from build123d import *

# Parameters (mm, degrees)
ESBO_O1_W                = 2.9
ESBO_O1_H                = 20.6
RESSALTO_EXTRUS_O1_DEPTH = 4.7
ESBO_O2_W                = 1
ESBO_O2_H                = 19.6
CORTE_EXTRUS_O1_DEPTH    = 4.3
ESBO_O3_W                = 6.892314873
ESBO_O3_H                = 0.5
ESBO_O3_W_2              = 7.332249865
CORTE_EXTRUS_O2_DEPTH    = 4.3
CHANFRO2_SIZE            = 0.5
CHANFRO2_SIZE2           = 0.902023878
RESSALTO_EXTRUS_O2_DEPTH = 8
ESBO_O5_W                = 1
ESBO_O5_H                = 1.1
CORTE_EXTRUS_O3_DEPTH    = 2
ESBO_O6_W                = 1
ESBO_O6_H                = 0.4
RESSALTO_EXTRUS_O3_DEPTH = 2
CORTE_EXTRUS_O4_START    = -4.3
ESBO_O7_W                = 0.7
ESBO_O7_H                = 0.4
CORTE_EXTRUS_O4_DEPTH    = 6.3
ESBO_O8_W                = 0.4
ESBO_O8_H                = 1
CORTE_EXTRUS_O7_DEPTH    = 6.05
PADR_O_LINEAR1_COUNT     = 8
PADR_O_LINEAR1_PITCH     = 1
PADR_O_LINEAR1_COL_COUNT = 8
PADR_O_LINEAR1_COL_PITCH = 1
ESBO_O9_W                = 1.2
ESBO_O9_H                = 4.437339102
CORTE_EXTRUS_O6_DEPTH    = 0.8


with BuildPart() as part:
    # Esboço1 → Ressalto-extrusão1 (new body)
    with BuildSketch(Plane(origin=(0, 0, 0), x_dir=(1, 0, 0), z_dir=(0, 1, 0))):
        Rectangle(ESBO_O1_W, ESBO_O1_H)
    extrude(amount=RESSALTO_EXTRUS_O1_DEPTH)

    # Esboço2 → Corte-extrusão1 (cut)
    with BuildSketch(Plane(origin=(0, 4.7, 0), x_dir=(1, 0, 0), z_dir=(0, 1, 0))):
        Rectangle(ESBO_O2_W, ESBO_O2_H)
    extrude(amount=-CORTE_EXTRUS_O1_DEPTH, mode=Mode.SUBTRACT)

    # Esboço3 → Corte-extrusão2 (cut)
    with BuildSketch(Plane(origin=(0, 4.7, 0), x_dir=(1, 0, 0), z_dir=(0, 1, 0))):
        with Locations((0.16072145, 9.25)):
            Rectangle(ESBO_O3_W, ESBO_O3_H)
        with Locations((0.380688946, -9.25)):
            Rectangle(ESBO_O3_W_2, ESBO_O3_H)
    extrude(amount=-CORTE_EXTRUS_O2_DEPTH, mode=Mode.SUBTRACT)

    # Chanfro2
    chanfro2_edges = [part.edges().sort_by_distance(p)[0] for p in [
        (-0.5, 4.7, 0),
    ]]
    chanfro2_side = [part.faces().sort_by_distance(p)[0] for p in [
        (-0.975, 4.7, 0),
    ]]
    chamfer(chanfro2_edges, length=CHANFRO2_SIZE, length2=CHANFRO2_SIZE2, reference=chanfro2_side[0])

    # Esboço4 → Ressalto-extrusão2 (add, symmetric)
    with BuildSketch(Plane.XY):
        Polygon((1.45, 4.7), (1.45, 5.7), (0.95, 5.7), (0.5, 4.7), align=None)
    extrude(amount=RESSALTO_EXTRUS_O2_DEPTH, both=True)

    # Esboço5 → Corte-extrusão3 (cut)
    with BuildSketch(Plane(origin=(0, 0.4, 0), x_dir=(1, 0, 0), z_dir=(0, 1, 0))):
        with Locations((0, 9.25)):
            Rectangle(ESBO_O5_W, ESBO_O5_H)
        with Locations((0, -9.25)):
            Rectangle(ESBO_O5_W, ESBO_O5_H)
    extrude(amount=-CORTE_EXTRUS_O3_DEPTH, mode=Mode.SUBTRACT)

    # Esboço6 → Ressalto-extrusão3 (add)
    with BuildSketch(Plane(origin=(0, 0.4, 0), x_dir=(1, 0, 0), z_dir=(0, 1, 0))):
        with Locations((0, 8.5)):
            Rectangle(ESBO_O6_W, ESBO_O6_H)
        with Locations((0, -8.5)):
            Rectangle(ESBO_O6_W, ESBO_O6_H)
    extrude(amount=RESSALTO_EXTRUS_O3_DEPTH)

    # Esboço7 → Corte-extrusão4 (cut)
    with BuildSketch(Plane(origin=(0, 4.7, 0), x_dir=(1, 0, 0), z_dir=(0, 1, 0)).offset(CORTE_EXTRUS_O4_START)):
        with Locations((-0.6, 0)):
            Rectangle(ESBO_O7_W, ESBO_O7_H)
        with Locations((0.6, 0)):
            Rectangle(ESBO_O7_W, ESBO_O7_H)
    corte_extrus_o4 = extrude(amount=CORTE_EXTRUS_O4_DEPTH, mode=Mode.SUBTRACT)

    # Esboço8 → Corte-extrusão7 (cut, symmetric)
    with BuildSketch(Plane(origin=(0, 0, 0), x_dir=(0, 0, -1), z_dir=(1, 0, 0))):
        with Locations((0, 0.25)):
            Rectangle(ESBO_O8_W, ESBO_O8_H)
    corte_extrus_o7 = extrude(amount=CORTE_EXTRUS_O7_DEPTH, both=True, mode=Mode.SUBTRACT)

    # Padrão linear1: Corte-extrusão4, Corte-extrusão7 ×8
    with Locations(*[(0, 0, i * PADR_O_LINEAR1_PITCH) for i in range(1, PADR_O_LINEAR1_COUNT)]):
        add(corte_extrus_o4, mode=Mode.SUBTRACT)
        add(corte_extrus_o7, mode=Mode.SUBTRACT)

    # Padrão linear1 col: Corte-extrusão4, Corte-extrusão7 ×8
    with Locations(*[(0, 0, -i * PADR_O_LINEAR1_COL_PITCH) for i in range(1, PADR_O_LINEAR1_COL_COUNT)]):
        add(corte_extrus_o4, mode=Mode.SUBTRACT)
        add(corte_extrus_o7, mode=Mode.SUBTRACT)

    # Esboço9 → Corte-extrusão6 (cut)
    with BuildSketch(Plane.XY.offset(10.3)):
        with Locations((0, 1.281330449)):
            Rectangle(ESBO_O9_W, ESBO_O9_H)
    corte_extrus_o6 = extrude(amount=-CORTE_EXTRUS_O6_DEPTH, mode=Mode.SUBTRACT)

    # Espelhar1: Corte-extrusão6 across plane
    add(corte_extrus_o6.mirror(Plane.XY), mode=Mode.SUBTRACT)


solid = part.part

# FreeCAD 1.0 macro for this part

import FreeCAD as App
import Part
import Sketcher
Q = App.Units.Quantity


def edges_at(feature, points):
    """Names of the edges that pass closest to the given points."""
    edges = feature.Shape.Edges
    near = lambda p: min(range(len(edges)), key=lambda i: edges[i].distToShape(Part.Vertex(*p))[0])
    return sorted({f"Edge{near(p) + 1}" for p in points})

doc = App.newDocument("Part")
body = doc.addObject("PartDesign::Body", "Body")

# Sketch on XZ plane
sketch1 = body.newObject("Sketcher::SketchObject", "Sketch")
sketch1.AttachmentSupport = (doc.getObject("XZ_Plane"), [""])
sketch1.MapMode = "FlatFace"
sketch1.addGeometry(Part.LineSegment(App.Vector(-1.45, -10.3, 0), App.Vector(-1.45, 10.3, 0)), False)
sketch1.addGeometry(Part.LineSegment(App.Vector(-1.45, 10.3, 0), App.Vector(1.45, 10.3, 0)), False)
sketch1.addGeometry(Part.LineSegment(App.Vector(1.45, 10.3, 0), App.Vector(1.45, -10.3, 0)), False)
sketch1.addGeometry(Part.LineSegment(App.Vector(1.45, -10.3, 0), App.Vector(-1.45, -10.3, 0)), False)
sketch1.addConstraint(Sketcher.Constraint("Coincident", 0, 2, 1, 1))
sketch1.addConstraint(Sketcher.Constraint("Coincident", 1, 2, 2, 1))
sketch1.addConstraint(Sketcher.Constraint("Coincident", 2, 2, 3, 1))
sketch1.addConstraint(Sketcher.Constraint("Coincident", 3, 2, 0, 1))
sketch1.addConstraint(Sketcher.Constraint("Vertical", 0))
sketch1.addConstraint(Sketcher.Constraint("Horizontal", 1))
sketch1.addConstraint(Sketcher.Constraint("Vertical", 2))
sketch1.addConstraint(Sketcher.Constraint("Horizontal", 3))
sketch1.addConstraint(Sketcher.Constraint("Symmetric", 0, 2, 2, 2, -1, 1))
sketch1.addConstraint(Sketcher.Constraint("DistanceX", 1, 1, 1, 2, Q("2.9 mm")))
sketch1.addConstraint(Sketcher.Constraint("DistanceY", 0, 1, 0, 2, Q("20.6 mm")))
pad1 = body.newObject("PartDesign::Pad", "Pad")
pad1.Profile = sketch1
pad1.Length = 4.7
pad1.Reversed = True

# Sketch on XZ plane
sketch2 = body.newObject("Sketcher::SketchObject", "Sketch001")
sketch2.AttachmentSupport = (doc.getObject("XZ_Plane"), [""])
sketch2.MapMode = "FlatFace"
sketch2.AttachmentOffset = App.Placement(App.Vector(0, 0, -4.7), App.Rotation())
sketch2.addGeometry(Part.LineSegment(App.Vector(-0.5, -9.8, 0), App.Vector(-0.5, 9.8, 0)), False)
sketch2.addGeometry(Part.LineSegment(App.Vector(-0.5, 9.8, 0), App.Vector(0.5, 9.8, 0)), False)
sketch2.addGeometry(Part.LineSegment(App.Vector(0.5, 9.8, 0), App.Vector(0.5, -9.8, 0)), False)
sketch2.addGeometry(Part.LineSegment(App.Vector(0.5, -9.8, 0), App.Vector(-0.5, -9.8, 0)), False)
sketch2.addConstraint(Sketcher.Constraint("Coincident", 0, 2, 1, 1))
sketch2.addConstraint(Sketcher.Constraint("Coincident", 1, 2, 2, 1))
sketch2.addConstraint(Sketcher.Constraint("Coincident", 2, 2, 3, 1))
sketch2.addConstraint(Sketcher.Constraint("Coincident", 3, 2, 0, 1))
sketch2.addConstraint(Sketcher.Constraint("Vertical", 0))
sketch2.addConstraint(Sketcher.Constraint("Horizontal", 1))
sketch2.addConstraint(Sketcher.Constraint("Vertical", 2))
sketch2.addConstraint(Sketcher.Constraint("Horizontal", 3))
sketch2.addConstraint(Sketcher.Constraint("Symmetric", 0, 2, 2, 2, -1, 1))
sketch2.addConstraint(Sketcher.Constraint("DistanceX", 1, 1, 1, 2, Q("1 mm")))
sketch2.addConstraint(Sketcher.Constraint("DistanceY", 0, 1, 0, 2, Q("19.6 mm")))
pocket1 = body.newObject("PartDesign::Pocket", "Pocket")
pocket1.Profile = sketch2
pocket1.Length = 4.3
pocket1.Reversed = True

# Sketch on XZ plane
sketch3 = body.newObject("Sketcher::SketchObject", "Sketch002")
sketch3.AttachmentSupport = (doc.getObject("XZ_Plane"), [""])
sketch3.MapMode = "FlatFace"
sketch3.AttachmentOffset = App.Placement(App.Vector(0, 0, -4.7), App.Rotation())
sketch3.addGeometry(Part.LineSegment(App.Vector(-3.285436, -9.5, 0), App.Vector(-3.285436, -9, 0)), False)
sketch3.addGeometry(Part.LineSegment(App.Vector(-3.285436, -9, 0), App.Vector(3.606879, -9, 0)), False)
sketch3.addGeometry(Part.LineSegment(App.Vector(3.606879, -9, 0), App.Vector(3.606879, -9.5, 0)), False)
sketch3.addGeometry(Part.LineSegment(App.Vector(3.606879, -9.5, 0), App.Vector(-3.285436, -9.5, 0)), False)
sketch3.addGeometry(Part.LineSegment(App.Vector(-3.285436, 9, 0), App.Vector(-3.285436, 9.5, 0)), False)
sketch3.addGeometry(Part.LineSegment(App.Vector(-3.285436, 9.5, 0), App.Vector(4.046814, 9.5, 0)), False)
sketch3.addGeometry(Part.LineSegment(App.Vector(4.046814, 9.5, 0), App.Vector(4.046814, 9, 0)), False)
sketch3.addGeometry(Part.LineSegment(App.Vector(4.046814, 9, 0), App.Vector(-3.285436, 9, 0)), False)
sketch3.addConstraint(Sketcher.Constraint("Coincident", 0, 2, 1, 1))
sketch3.addConstraint(Sketcher.Constraint("Coincident", 1, 2, 2, 1))
sketch3.addConstraint(Sketcher.Constraint("Coincident", 2, 2, 3, 1))
sketch3.addConstraint(Sketcher.Constraint("Coincident", 3, 2, 0, 1))
sketch3.addConstraint(Sketcher.Constraint("Coincident", 4, 2, 5, 1))
sketch3.addConstraint(Sketcher.Constraint("Coincident", 5, 2, 6, 1))
sketch3.addConstraint(Sketcher.Constraint("Coincident", 6, 2, 7, 1))
sketch3.addConstraint(Sketcher.Constraint("Coincident", 7, 2, 4, 1))
sketch3.addConstraint(Sketcher.Constraint("Vertical", 0))
sketch3.addConstraint(Sketcher.Constraint("Horizontal", 1))
sketch3.addConstraint(Sketcher.Constraint("Vertical", 2))
sketch3.addConstraint(Sketcher.Constraint("Horizontal", 3))
sketch3.addConstraint(Sketcher.Constraint("Vertical", 4))
sketch3.addConstraint(Sketcher.Constraint("Horizontal", 5))
sketch3.addConstraint(Sketcher.Constraint("Vertical", 6))
sketch3.addConstraint(Sketcher.Constraint("Horizontal", 7))
sketch3.addConstraint(Sketcher.Constraint("Symmetric", 3, 2, 4, 2, -1))
sketch3.addConstraint(Sketcher.Constraint("Equal", 2, 4))
sketch3.addConstraint(Sketcher.Constraint("DistanceY", 0, 1, 0, 2, Q("0.5 mm")))
sketch3.addConstraint(Sketcher.Constraint("DistanceY", 0, 2, -1, 1, Q("9 mm")))
sketch3.addConstraint(Sketcher.Constraint("DistanceX", 5, 1, 5, 2, Q("7.33225 mm")))
sketch3.addConstraint(Sketcher.Constraint("DistanceX", 1, 1, 1, 2, Q("6.892315 mm")))
sketch3.addConstraint(Sketcher.Constraint("DistanceX", -1, 1, 1, 2, Q("3.606879 mm")))
pocket2 = body.newObject("PartDesign::Pocket", "Pocket001")
pocket2.Profile = sketch3
pocket2.Length = 4.3
pocket2.Reversed = True
doc.recompute()

chamfer = body.newObject("PartDesign::Chamfer", "Chamfer")
chamfer.Base = (pocket2, edges_at(pocket2, [(-0.5, 4.7, 0)]))
chamfer.ChamferType = "Two distances"
chamfer.Size = 0.5
chamfer.Size2 = 0.902024

# Sketch on XY plane
sketch4 = body.newObject("Sketcher::SketchObject", "Sketch003")
sketch4.AttachmentSupport = (doc.getObject("XY_Plane"), [""])
sketch4.MapMode = "FlatFace"
sketch4.addGeometry(Part.LineSegment(App.Vector(1.45, 4.7, 0), App.Vector(1.45, 5.7, 0)), False)
sketch4.addGeometry(Part.LineSegment(App.Vector(1.45, 5.7, 0), App.Vector(0.95, 5.7, 0)), False)
sketch4.addGeometry(Part.LineSegment(App.Vector(0.95, 5.7, 0), App.Vector(0.5, 4.7, 0)), False)
sketch4.addGeometry(Part.LineSegment(App.Vector(0.5, 4.7, 0), App.Vector(1.45, 4.7, 0)), False)
sketch4.addConstraint(Sketcher.Constraint("Coincident", 0, 2, 1, 1))
sketch4.addConstraint(Sketcher.Constraint("Coincident", 1, 2, 2, 1))
sketch4.addConstraint(Sketcher.Constraint("Coincident", 2, 2, 3, 1))
sketch4.addConstraint(Sketcher.Constraint("Coincident", 3, 2, 0, 1))
sketch4.addConstraint(Sketcher.Constraint("Vertical", 0))
sketch4.addConstraint(Sketcher.Constraint("Horizontal", 1))
sketch4.addConstraint(Sketcher.Constraint("Horizontal", 3))
sketch4.addConstraint(Sketcher.Constraint("DistanceY", 0, 1, 0, 2, Q("1 mm")))
sketch4.addConstraint(Sketcher.Constraint("DistanceX", 1, 2, 1, 1, Q("0.5 mm")))
sketch4.addConstraint(Sketcher.Constraint("DistanceX", 3, 1, 3, 2, Q("0.95 mm")))
sketch4.addConstraint(Sketcher.Constraint("DistanceY", -1, 1, 0, 2, Q("5.7 mm")))
sketch4.addConstraint(Sketcher.Constraint("DistanceX", -1, 1, 2, 2, Q("0.5 mm")))
pad2 = body.newObject("PartDesign::Pad", "Pad001")
pad2.Profile = sketch4
pad2.Length = 16
pad2.Midplane = True

# Sketch on XZ plane
sketch5 = body.newObject("Sketcher::SketchObject", "Sketch004")
sketch5.AttachmentSupport = (doc.getObject("XZ_Plane"), [""])
sketch5.MapMode = "FlatFace"
sketch5.AttachmentOffset = App.Placement(App.Vector(0, 0, -0.4), App.Rotation())
sketch5.addGeometry(Part.LineSegment(App.Vector(-0.5, -9.8, 0), App.Vector(-0.5, -8.7, 0)), False)
sketch5.addGeometry(Part.LineSegment(App.Vector(-0.5, -8.7, 0), App.Vector(0.5, -8.7, 0)), False)
sketch5.addGeometry(Part.LineSegment(App.Vector(0.5, -8.7, 0), App.Vector(0.5, -9.8, 0)), False)
sketch5.addGeometry(Part.LineSegment(App.Vector(0.5, -9.8, 0), App.Vector(-0.5, -9.8, 0)), False)
sketch5.addGeometry(Part.LineSegment(App.Vector(-0.5, 8.7, 0), App.Vector(-0.5, 9.8, 0)), False)
sketch5.addGeometry(Part.LineSegment(App.Vector(-0.5, 9.8, 0), App.Vector(0.5, 9.8, 0)), False)
sketch5.addGeometry(Part.LineSegment(App.Vector(0.5, 9.8, 0), App.Vector(0.5, 8.7, 0)), False)
sketch5.addGeometry(Part.LineSegment(App.Vector(0.5, 8.7, 0), App.Vector(-0.5, 8.7, 0)), False)
sketch5.addConstraint(Sketcher.Constraint("Coincident", 0, 2, 1, 1))
sketch5.addConstraint(Sketcher.Constraint("Coincident", 1, 2, 2, 1))
sketch5.addConstraint(Sketcher.Constraint("Coincident", 2, 2, 3, 1))
sketch5.addConstraint(Sketcher.Constraint("Coincident", 3, 2, 0, 1))
sketch5.addConstraint(Sketcher.Constraint("Coincident", 4, 2, 5, 1))
sketch5.addConstraint(Sketcher.Constraint("Coincident", 5, 2, 6, 1))
sketch5.addConstraint(Sketcher.Constraint("Coincident", 6, 2, 7, 1))
sketch5.addConstraint(Sketcher.Constraint("Coincident", 7, 2, 4, 1))
sketch5.addConstraint(Sketcher.Constraint("Vertical", 0))
sketch5.addConstraint(Sketcher.Constraint("Horizontal", 1))
sketch5.addConstraint(Sketcher.Constraint("Vertical", 2))
sketch5.addConstraint(Sketcher.Constraint("Horizontal", 3))
sketch5.addConstraint(Sketcher.Constraint("Vertical", 4))
sketch5.addConstraint(Sketcher.Constraint("Horizontal", 5))
sketch5.addConstraint(Sketcher.Constraint("Vertical", 6))
sketch5.addConstraint(Sketcher.Constraint("Horizontal", 7))
sketch5.addConstraint(Sketcher.Constraint("Symmetric", 2, 2, 4, 2, -1, 1))
sketch5.addConstraint(Sketcher.Constraint("Symmetric", 0, 2, 6, 2, -1, 1))
sketch5.addConstraint(Sketcher.Constraint("Vertical", 3, 2, 4, 2))
sketch5.addConstraint(Sketcher.Constraint("DistanceX", 1, 1, 1, 2, Q("1 mm")))
sketch5.addConstraint(Sketcher.Constraint("DistanceY", 0, 1, 0, 2, Q("1.1 mm")))
sketch5.addConstraint(Sketcher.Constraint("DistanceY", 0, 2, -1, 1, Q("8.7 mm")))
pocket3 = body.newObject("PartDesign::Pocket", "Pocket002")
pocket3.Profile = sketch5
pocket3.Length = 2
pocket3.Reversed = True

# Sketch on XZ plane
sketch6 = body.newObject("Sketcher::SketchObject", "Sketch005")
sketch6.AttachmentSupport = (doc.getObject("XZ_Plane"), [""])
sketch6.MapMode = "FlatFace"
sketch6.AttachmentOffset = App.Placement(App.Vector(0, 0, -0.4), App.Rotation())
sketch6.addGeometry(Part.LineSegment(App.Vector(-0.5, -8.7, 0), App.Vector(-0.5, -8.3, 0)), False)
sketch6.addGeometry(Part.LineSegment(App.Vector(-0.5, -8.3, 0), App.Vector(0.5, -8.3, 0)), False)
sketch6.addGeometry(Part.LineSegment(App.Vector(0.5, -8.3, 0), App.Vector(0.5, -8.7, 0)), False)
sketch6.addGeometry(Part.LineSegment(App.Vector(0.5, -8.7, 0), App.Vector(-0.5, -8.7, 0)), False)
sketch6.addGeometry(Part.LineSegment(App.Vector(-0.5, 8.3, 0), App.Vector(-0.5, 8.7, 0)), False)
sketch6.addGeometry(Part.LineSegment(App.Vector(-0.5, 8.7, 0), App.Vector(0.5, 8.7, 0)), False)
sketch6.addGeometry(Part.LineSegment(App.Vector(0.5, 8.7, 0), App.Vector(0.5, 8.3, 0)), False)
sketch6.addGeometry(Part.LineSegment(App.Vector(0.5, 8.3, 0), App.Vector(-0.5, 8.3, 0)), False)
sketch6.addConstraint(Sketcher.Constraint("Coincident", 0, 2, 1, 1))
sketch6.addConstraint(Sketcher.Constraint("Coincident", 1, 2, 2, 1))
sketch6.addConstraint(Sketcher.Constraint("Coincident", 2, 2, 3, 1))
sketch6.addConstraint(Sketcher.Constraint("Coincident", 3, 2, 0, 1))
sketch6.addConstraint(Sketcher.Constraint("Coincident", 4, 2, 5, 1))
sketch6.addConstraint(Sketcher.Constraint("Coincident", 5, 2, 6, 1))
sketch6.addConstraint(Sketcher.Constraint("Coincident", 6, 2, 7, 1))
sketch6.addConstraint(Sketcher.Constraint("Coincident", 7, 2, 4, 1))
sketch6.addConstraint(Sketcher.Constraint("Vertical", 0))
sketch6.addConstraint(Sketcher.Constraint("Horizontal", 1))
sketch6.addConstraint(Sketcher.Constraint("Vertical", 2))
sketch6.addConstraint(Sketcher.Constraint("Horizontal", 3))
sketch6.addConstraint(Sketcher.Constraint("Vertical", 4))
sketch6.addConstraint(Sketcher.Constraint("Horizontal", 5))
sketch6.addConstraint(Sketcher.Constraint("Vertical", 6))
sketch6.addConstraint(Sketcher.Constraint("Horizontal", 7))
sketch6.addConstraint(Sketcher.Constraint("Symmetric", 2, 2, 4, 2, -1, 1))
sketch6.addConstraint(Sketcher.Constraint("Symmetric", 0, 2, 6, 2, -1, 1))
sketch6.addConstraint(Sketcher.Constraint("Vertical", 3, 2, 4, 2))
sketch6.addConstraint(Sketcher.Constraint("DistanceX", 1, 1, 1, 2, Q("1 mm")))
sketch6.addConstraint(Sketcher.Constraint("DistanceY", 0, 1, 0, 2, Q("0.4 mm")))
sketch6.addConstraint(Sketcher.Constraint("DistanceY", 0, 2, 4, 2, Q("17 mm")))
pad3 = body.newObject("PartDesign::Pad", "Pad002")
pad3.Profile = sketch6
pad3.Length = 2
pad3.Reversed = True

# Sketch on XZ plane
sketch7 = body.newObject("Sketcher::SketchObject", "Sketch006")
sketch7.AttachmentSupport = (doc.getObject("XZ_Plane"), [""])
sketch7.MapMode = "FlatFace"
sketch7.AttachmentOffset = App.Placement(App.Vector(0, 0, -0.4), App.Rotation())
sketch7.addGeometry(Part.LineSegment(App.Vector(-0.95, -0.2, 0), App.Vector(-0.95, 0.2, 0)), False)
sketch7.addGeometry(Part.LineSegment(App.Vector(-0.95, 0.2, 0), App.Vector(-0.25, 0.2, 0)), False)
sketch7.addGeometry(Part.LineSegment(App.Vector(-0.25, 0.2, 0), App.Vector(-0.25, -0.2, 0)), False)
sketch7.addGeometry(Part.LineSegment(App.Vector(-0.25, -0.2, 0), App.Vector(-0.95, -0.2, 0)), False)
sketch7.addGeometry(Part.LineSegment(App.Vector(0.25, -0.2, 0), App.Vector(0.25, 0.2, 0)), False)
sketch7.addGeometry(Part.LineSegment(App.Vector(0.25, 0.2, 0), App.Vector(0.95, 0.2, 0)), False)
sketch7.addGeometry(Part.LineSegment(App.Vector(0.95, 0.2, 0), App.Vector(0.95, -0.2, 0)), False)
sketch7.addGeometry(Part.LineSegment(App.Vector(0.95, -0.2, 0), App.Vector(0.25, -0.2, 0)), False)
sketch7.addConstraint(Sketcher.Constraint("Coincident", 0, 2, 1, 1))
sketch7.addConstraint(Sketcher.Constraint("Coincident", 1, 2, 2, 1))
sketch7.addConstraint(Sketcher.Constraint("Coincident", 2, 2, 3, 1))
sketch7.addConstraint(Sketcher.Constraint("Coincident", 3, 2, 0, 1))
sketch7.addConstraint(Sketcher.Constraint("Coincident", 4, 2, 5, 1))
sketch7.addConstraint(Sketcher.Constraint("Coincident", 5, 2, 6, 1))
sketch7.addConstraint(Sketcher.Constraint("Coincident", 6, 2, 7, 1))
sketch7.addConstraint(Sketcher.Constraint("Coincident", 7, 2, 4, 1))
sketch7.addConstraint(Sketcher.Constraint("Vertical", 0))
sketch7.addConstraint(Sketcher.Constraint("Horizontal", 1))
sketch7.addConstraint(Sketcher.Constraint("Vertical", 2))
sketch7.addConstraint(Sketcher.Constraint("Horizontal", 3))
sketch7.addConstraint(Sketcher.Constraint("Vertical", 4))
sketch7.addConstraint(Sketcher.Constraint("Horizontal", 5))
sketch7.addConstraint(Sketcher.Constraint("Vertical", 6))
sketch7.addConstraint(Sketcher.Constraint("Horizontal", 7))
sketch7.addConstraint(Sketcher.Constraint("Symmetric", 2, 2, 4, 2, -1, 1))
sketch7.addConstraint(Sketcher.Constraint("Symmetric", 0, 2, 6, 2, -1, 1))
sketch7.addConstraint(Sketcher.Constraint("Horizontal", 1, 2, 4, 2))
sketch7.addConstraint(Sketcher.Constraint("DistanceX", 1, 1, 1, 2, Q("0.7 mm")))
sketch7.addConstraint(Sketcher.Constraint("DistanceY", 0, 1, 0, 2, Q("0.4 mm")))
sketch7.addConstraint(Sketcher.Constraint("DistanceX", 1, 2, 4, 2, Q("0.5 mm")))
pocket4 = body.newObject("PartDesign::Pocket", "Pocket003")
pocket4.Profile = sketch7
pocket4.Length = 6.3

# Sketch on YZ plane
sketch8 = body.newObject("Sketcher::SketchObject", "Sketch007")
sketch8.AttachmentSupport = (doc.getObject("YZ_Plane"), [""])
sketch8.MapMode = "FlatFace"
sketch8.addGeometry(Part.LineSegment(App.Vector(0.75, 0.2, 0), App.Vector(-0.25, 0.2, 0)), False)
sketch8.addGeometry(Part.LineSegment(App.Vector(-0.25, 0.2, 0), App.Vector(-0.25, -0.2, 0)), False)
sketch8.addGeometry(Part.LineSegment(App.Vector(-0.25, -0.2, 0), App.Vector(0.75, -0.2, 0)), False)
sketch8.addGeometry(Part.LineSegment(App.Vector(0.75, -0.2, 0), App.Vector(0.75, 0.2, 0)), False)
sketch8.addConstraint(Sketcher.Constraint("Coincident", 0, 2, 1, 1))
sketch8.addConstraint(Sketcher.Constraint("Coincident", 1, 2, 2, 1))
sketch8.addConstraint(Sketcher.Constraint("Coincident", 2, 2, 3, 1))
sketch8.addConstraint(Sketcher.Constraint("Coincident", 3, 2, 0, 1))
sketch8.addConstraint(Sketcher.Constraint("Horizontal", 0))
sketch8.addConstraint(Sketcher.Constraint("Vertical", 1))
sketch8.addConstraint(Sketcher.Constraint("Horizontal", 2))
sketch8.addConstraint(Sketcher.Constraint("Vertical", 3))
sketch8.addConstraint(Sketcher.Constraint("DistanceX", 0, 2, 0, 1, Q("1 mm")))
sketch8.addConstraint(Sketcher.Constraint("DistanceY", 1, 2, 1, 1, Q("0.4 mm")))
sketch8.addConstraint(Sketcher.Constraint("DistanceY", -1, 1, 0, 2, Q("0.2 mm")))
sketch8.addConstraint(Sketcher.Constraint("DistanceX", 0, 2, -1, 1, Q("0.25 mm")))
pocket5 = body.newObject("PartDesign::Pocket", "Pocket004")
pocket5.Profile = sketch8
pocket5.Length = 12.1
pocket5.Midplane = True
doc.recompute()

linearpattern = body.newObject("PartDesign::LinearPattern", "LinearPattern")
linearpattern.Originals = [pocket4, pocket5]
linearpattern.Direction = (doc.getObject("Z_Axis"), [""])
linearpattern.Mode = "offset"
linearpattern.Offset = 1
linearpattern.Occurrences = 8
body.Tip = linearpattern
doc.recompute()

linearpattern2 = body.newObject("PartDesign::LinearPattern", "LinearPattern001")
linearpattern2.Originals = [pocket4, pocket5]
linearpattern2.Direction = (doc.getObject("Z_Axis"), [""])
linearpattern2.Mode = "offset"
linearpattern2.Offset = 1
linearpattern2.Occurrences = 8
linearpattern2.Reversed = True
body.Tip = linearpattern2

# Sketch on XY plane
sketch9 = body.newObject("Sketcher::SketchObject", "Sketch008")
sketch9.AttachmentSupport = (doc.getObject("XY_Plane"), [""])
sketch9.MapMode = "FlatFace"
sketch9.AttachmentOffset = App.Placement(App.Vector(0, 0, 10.3), App.Rotation())
sketch9.addGeometry(Part.LineSegment(App.Vector(-0.6, 3.5, 0), App.Vector(-0.6, -0.937339, 0)), False)
sketch9.addGeometry(Part.LineSegment(App.Vector(-0.6, -0.937339, 0), App.Vector(0.6, -0.937339, 0)), False)
sketch9.addGeometry(Part.LineSegment(App.Vector(0.6, -0.937339, 0), App.Vector(0.6, 3.5, 0)), False)
sketch9.addGeometry(Part.LineSegment(App.Vector(0.6, 3.5, 0), App.Vector(-0.6, 3.5, 0)), False)
sketch9.addConstraint(Sketcher.Constraint("Coincident", 0, 2, 1, 1))
sketch9.addConstraint(Sketcher.Constraint("Coincident", 1, 2, 2, 1))
sketch9.addConstraint(Sketcher.Constraint("Coincident", 2, 2, 3, 1))
sketch9.addConstraint(Sketcher.Constraint("Coincident", 3, 2, 0, 1))
sketch9.addConstraint(Sketcher.Constraint("Vertical", 0))
sketch9.addConstraint(Sketcher.Constraint("Horizontal", 1))
sketch9.addConstraint(Sketcher.Constraint("Vertical", 2))
sketch9.addConstraint(Sketcher.Constraint("Horizontal", 3))
sketch9.addConstraint(Sketcher.Constraint("DistanceX", 1, 1, 1, 2, Q("1.2 mm")))
sketch9.addConstraint(Sketcher.Constraint("DistanceX", 0, 2, -1, 1, Q("0.6 mm")))
sketch9.addConstraint(Sketcher.Constraint("DistanceY", -1, 1, 2, 2, Q("3.5 mm")))
sketch9.addConstraint(Sketcher.Constraint("DistanceY", 0, 2, 0, 1, Q("4.437339 mm")))
pocket6 = body.newObject("PartDesign::Pocket", "Pocket005")
pocket6.Profile = sketch9
pocket6.Length = 0.8
doc.recompute()

mirrored = body.newObject("PartDesign::Mirrored", "Mirrored")
mirrored.Originals = [pocket6]
mirrored.MirrorPlane = (doc.getObject("XY_Plane"), [""])
body.Tip = mirrored

doc.recompute()
